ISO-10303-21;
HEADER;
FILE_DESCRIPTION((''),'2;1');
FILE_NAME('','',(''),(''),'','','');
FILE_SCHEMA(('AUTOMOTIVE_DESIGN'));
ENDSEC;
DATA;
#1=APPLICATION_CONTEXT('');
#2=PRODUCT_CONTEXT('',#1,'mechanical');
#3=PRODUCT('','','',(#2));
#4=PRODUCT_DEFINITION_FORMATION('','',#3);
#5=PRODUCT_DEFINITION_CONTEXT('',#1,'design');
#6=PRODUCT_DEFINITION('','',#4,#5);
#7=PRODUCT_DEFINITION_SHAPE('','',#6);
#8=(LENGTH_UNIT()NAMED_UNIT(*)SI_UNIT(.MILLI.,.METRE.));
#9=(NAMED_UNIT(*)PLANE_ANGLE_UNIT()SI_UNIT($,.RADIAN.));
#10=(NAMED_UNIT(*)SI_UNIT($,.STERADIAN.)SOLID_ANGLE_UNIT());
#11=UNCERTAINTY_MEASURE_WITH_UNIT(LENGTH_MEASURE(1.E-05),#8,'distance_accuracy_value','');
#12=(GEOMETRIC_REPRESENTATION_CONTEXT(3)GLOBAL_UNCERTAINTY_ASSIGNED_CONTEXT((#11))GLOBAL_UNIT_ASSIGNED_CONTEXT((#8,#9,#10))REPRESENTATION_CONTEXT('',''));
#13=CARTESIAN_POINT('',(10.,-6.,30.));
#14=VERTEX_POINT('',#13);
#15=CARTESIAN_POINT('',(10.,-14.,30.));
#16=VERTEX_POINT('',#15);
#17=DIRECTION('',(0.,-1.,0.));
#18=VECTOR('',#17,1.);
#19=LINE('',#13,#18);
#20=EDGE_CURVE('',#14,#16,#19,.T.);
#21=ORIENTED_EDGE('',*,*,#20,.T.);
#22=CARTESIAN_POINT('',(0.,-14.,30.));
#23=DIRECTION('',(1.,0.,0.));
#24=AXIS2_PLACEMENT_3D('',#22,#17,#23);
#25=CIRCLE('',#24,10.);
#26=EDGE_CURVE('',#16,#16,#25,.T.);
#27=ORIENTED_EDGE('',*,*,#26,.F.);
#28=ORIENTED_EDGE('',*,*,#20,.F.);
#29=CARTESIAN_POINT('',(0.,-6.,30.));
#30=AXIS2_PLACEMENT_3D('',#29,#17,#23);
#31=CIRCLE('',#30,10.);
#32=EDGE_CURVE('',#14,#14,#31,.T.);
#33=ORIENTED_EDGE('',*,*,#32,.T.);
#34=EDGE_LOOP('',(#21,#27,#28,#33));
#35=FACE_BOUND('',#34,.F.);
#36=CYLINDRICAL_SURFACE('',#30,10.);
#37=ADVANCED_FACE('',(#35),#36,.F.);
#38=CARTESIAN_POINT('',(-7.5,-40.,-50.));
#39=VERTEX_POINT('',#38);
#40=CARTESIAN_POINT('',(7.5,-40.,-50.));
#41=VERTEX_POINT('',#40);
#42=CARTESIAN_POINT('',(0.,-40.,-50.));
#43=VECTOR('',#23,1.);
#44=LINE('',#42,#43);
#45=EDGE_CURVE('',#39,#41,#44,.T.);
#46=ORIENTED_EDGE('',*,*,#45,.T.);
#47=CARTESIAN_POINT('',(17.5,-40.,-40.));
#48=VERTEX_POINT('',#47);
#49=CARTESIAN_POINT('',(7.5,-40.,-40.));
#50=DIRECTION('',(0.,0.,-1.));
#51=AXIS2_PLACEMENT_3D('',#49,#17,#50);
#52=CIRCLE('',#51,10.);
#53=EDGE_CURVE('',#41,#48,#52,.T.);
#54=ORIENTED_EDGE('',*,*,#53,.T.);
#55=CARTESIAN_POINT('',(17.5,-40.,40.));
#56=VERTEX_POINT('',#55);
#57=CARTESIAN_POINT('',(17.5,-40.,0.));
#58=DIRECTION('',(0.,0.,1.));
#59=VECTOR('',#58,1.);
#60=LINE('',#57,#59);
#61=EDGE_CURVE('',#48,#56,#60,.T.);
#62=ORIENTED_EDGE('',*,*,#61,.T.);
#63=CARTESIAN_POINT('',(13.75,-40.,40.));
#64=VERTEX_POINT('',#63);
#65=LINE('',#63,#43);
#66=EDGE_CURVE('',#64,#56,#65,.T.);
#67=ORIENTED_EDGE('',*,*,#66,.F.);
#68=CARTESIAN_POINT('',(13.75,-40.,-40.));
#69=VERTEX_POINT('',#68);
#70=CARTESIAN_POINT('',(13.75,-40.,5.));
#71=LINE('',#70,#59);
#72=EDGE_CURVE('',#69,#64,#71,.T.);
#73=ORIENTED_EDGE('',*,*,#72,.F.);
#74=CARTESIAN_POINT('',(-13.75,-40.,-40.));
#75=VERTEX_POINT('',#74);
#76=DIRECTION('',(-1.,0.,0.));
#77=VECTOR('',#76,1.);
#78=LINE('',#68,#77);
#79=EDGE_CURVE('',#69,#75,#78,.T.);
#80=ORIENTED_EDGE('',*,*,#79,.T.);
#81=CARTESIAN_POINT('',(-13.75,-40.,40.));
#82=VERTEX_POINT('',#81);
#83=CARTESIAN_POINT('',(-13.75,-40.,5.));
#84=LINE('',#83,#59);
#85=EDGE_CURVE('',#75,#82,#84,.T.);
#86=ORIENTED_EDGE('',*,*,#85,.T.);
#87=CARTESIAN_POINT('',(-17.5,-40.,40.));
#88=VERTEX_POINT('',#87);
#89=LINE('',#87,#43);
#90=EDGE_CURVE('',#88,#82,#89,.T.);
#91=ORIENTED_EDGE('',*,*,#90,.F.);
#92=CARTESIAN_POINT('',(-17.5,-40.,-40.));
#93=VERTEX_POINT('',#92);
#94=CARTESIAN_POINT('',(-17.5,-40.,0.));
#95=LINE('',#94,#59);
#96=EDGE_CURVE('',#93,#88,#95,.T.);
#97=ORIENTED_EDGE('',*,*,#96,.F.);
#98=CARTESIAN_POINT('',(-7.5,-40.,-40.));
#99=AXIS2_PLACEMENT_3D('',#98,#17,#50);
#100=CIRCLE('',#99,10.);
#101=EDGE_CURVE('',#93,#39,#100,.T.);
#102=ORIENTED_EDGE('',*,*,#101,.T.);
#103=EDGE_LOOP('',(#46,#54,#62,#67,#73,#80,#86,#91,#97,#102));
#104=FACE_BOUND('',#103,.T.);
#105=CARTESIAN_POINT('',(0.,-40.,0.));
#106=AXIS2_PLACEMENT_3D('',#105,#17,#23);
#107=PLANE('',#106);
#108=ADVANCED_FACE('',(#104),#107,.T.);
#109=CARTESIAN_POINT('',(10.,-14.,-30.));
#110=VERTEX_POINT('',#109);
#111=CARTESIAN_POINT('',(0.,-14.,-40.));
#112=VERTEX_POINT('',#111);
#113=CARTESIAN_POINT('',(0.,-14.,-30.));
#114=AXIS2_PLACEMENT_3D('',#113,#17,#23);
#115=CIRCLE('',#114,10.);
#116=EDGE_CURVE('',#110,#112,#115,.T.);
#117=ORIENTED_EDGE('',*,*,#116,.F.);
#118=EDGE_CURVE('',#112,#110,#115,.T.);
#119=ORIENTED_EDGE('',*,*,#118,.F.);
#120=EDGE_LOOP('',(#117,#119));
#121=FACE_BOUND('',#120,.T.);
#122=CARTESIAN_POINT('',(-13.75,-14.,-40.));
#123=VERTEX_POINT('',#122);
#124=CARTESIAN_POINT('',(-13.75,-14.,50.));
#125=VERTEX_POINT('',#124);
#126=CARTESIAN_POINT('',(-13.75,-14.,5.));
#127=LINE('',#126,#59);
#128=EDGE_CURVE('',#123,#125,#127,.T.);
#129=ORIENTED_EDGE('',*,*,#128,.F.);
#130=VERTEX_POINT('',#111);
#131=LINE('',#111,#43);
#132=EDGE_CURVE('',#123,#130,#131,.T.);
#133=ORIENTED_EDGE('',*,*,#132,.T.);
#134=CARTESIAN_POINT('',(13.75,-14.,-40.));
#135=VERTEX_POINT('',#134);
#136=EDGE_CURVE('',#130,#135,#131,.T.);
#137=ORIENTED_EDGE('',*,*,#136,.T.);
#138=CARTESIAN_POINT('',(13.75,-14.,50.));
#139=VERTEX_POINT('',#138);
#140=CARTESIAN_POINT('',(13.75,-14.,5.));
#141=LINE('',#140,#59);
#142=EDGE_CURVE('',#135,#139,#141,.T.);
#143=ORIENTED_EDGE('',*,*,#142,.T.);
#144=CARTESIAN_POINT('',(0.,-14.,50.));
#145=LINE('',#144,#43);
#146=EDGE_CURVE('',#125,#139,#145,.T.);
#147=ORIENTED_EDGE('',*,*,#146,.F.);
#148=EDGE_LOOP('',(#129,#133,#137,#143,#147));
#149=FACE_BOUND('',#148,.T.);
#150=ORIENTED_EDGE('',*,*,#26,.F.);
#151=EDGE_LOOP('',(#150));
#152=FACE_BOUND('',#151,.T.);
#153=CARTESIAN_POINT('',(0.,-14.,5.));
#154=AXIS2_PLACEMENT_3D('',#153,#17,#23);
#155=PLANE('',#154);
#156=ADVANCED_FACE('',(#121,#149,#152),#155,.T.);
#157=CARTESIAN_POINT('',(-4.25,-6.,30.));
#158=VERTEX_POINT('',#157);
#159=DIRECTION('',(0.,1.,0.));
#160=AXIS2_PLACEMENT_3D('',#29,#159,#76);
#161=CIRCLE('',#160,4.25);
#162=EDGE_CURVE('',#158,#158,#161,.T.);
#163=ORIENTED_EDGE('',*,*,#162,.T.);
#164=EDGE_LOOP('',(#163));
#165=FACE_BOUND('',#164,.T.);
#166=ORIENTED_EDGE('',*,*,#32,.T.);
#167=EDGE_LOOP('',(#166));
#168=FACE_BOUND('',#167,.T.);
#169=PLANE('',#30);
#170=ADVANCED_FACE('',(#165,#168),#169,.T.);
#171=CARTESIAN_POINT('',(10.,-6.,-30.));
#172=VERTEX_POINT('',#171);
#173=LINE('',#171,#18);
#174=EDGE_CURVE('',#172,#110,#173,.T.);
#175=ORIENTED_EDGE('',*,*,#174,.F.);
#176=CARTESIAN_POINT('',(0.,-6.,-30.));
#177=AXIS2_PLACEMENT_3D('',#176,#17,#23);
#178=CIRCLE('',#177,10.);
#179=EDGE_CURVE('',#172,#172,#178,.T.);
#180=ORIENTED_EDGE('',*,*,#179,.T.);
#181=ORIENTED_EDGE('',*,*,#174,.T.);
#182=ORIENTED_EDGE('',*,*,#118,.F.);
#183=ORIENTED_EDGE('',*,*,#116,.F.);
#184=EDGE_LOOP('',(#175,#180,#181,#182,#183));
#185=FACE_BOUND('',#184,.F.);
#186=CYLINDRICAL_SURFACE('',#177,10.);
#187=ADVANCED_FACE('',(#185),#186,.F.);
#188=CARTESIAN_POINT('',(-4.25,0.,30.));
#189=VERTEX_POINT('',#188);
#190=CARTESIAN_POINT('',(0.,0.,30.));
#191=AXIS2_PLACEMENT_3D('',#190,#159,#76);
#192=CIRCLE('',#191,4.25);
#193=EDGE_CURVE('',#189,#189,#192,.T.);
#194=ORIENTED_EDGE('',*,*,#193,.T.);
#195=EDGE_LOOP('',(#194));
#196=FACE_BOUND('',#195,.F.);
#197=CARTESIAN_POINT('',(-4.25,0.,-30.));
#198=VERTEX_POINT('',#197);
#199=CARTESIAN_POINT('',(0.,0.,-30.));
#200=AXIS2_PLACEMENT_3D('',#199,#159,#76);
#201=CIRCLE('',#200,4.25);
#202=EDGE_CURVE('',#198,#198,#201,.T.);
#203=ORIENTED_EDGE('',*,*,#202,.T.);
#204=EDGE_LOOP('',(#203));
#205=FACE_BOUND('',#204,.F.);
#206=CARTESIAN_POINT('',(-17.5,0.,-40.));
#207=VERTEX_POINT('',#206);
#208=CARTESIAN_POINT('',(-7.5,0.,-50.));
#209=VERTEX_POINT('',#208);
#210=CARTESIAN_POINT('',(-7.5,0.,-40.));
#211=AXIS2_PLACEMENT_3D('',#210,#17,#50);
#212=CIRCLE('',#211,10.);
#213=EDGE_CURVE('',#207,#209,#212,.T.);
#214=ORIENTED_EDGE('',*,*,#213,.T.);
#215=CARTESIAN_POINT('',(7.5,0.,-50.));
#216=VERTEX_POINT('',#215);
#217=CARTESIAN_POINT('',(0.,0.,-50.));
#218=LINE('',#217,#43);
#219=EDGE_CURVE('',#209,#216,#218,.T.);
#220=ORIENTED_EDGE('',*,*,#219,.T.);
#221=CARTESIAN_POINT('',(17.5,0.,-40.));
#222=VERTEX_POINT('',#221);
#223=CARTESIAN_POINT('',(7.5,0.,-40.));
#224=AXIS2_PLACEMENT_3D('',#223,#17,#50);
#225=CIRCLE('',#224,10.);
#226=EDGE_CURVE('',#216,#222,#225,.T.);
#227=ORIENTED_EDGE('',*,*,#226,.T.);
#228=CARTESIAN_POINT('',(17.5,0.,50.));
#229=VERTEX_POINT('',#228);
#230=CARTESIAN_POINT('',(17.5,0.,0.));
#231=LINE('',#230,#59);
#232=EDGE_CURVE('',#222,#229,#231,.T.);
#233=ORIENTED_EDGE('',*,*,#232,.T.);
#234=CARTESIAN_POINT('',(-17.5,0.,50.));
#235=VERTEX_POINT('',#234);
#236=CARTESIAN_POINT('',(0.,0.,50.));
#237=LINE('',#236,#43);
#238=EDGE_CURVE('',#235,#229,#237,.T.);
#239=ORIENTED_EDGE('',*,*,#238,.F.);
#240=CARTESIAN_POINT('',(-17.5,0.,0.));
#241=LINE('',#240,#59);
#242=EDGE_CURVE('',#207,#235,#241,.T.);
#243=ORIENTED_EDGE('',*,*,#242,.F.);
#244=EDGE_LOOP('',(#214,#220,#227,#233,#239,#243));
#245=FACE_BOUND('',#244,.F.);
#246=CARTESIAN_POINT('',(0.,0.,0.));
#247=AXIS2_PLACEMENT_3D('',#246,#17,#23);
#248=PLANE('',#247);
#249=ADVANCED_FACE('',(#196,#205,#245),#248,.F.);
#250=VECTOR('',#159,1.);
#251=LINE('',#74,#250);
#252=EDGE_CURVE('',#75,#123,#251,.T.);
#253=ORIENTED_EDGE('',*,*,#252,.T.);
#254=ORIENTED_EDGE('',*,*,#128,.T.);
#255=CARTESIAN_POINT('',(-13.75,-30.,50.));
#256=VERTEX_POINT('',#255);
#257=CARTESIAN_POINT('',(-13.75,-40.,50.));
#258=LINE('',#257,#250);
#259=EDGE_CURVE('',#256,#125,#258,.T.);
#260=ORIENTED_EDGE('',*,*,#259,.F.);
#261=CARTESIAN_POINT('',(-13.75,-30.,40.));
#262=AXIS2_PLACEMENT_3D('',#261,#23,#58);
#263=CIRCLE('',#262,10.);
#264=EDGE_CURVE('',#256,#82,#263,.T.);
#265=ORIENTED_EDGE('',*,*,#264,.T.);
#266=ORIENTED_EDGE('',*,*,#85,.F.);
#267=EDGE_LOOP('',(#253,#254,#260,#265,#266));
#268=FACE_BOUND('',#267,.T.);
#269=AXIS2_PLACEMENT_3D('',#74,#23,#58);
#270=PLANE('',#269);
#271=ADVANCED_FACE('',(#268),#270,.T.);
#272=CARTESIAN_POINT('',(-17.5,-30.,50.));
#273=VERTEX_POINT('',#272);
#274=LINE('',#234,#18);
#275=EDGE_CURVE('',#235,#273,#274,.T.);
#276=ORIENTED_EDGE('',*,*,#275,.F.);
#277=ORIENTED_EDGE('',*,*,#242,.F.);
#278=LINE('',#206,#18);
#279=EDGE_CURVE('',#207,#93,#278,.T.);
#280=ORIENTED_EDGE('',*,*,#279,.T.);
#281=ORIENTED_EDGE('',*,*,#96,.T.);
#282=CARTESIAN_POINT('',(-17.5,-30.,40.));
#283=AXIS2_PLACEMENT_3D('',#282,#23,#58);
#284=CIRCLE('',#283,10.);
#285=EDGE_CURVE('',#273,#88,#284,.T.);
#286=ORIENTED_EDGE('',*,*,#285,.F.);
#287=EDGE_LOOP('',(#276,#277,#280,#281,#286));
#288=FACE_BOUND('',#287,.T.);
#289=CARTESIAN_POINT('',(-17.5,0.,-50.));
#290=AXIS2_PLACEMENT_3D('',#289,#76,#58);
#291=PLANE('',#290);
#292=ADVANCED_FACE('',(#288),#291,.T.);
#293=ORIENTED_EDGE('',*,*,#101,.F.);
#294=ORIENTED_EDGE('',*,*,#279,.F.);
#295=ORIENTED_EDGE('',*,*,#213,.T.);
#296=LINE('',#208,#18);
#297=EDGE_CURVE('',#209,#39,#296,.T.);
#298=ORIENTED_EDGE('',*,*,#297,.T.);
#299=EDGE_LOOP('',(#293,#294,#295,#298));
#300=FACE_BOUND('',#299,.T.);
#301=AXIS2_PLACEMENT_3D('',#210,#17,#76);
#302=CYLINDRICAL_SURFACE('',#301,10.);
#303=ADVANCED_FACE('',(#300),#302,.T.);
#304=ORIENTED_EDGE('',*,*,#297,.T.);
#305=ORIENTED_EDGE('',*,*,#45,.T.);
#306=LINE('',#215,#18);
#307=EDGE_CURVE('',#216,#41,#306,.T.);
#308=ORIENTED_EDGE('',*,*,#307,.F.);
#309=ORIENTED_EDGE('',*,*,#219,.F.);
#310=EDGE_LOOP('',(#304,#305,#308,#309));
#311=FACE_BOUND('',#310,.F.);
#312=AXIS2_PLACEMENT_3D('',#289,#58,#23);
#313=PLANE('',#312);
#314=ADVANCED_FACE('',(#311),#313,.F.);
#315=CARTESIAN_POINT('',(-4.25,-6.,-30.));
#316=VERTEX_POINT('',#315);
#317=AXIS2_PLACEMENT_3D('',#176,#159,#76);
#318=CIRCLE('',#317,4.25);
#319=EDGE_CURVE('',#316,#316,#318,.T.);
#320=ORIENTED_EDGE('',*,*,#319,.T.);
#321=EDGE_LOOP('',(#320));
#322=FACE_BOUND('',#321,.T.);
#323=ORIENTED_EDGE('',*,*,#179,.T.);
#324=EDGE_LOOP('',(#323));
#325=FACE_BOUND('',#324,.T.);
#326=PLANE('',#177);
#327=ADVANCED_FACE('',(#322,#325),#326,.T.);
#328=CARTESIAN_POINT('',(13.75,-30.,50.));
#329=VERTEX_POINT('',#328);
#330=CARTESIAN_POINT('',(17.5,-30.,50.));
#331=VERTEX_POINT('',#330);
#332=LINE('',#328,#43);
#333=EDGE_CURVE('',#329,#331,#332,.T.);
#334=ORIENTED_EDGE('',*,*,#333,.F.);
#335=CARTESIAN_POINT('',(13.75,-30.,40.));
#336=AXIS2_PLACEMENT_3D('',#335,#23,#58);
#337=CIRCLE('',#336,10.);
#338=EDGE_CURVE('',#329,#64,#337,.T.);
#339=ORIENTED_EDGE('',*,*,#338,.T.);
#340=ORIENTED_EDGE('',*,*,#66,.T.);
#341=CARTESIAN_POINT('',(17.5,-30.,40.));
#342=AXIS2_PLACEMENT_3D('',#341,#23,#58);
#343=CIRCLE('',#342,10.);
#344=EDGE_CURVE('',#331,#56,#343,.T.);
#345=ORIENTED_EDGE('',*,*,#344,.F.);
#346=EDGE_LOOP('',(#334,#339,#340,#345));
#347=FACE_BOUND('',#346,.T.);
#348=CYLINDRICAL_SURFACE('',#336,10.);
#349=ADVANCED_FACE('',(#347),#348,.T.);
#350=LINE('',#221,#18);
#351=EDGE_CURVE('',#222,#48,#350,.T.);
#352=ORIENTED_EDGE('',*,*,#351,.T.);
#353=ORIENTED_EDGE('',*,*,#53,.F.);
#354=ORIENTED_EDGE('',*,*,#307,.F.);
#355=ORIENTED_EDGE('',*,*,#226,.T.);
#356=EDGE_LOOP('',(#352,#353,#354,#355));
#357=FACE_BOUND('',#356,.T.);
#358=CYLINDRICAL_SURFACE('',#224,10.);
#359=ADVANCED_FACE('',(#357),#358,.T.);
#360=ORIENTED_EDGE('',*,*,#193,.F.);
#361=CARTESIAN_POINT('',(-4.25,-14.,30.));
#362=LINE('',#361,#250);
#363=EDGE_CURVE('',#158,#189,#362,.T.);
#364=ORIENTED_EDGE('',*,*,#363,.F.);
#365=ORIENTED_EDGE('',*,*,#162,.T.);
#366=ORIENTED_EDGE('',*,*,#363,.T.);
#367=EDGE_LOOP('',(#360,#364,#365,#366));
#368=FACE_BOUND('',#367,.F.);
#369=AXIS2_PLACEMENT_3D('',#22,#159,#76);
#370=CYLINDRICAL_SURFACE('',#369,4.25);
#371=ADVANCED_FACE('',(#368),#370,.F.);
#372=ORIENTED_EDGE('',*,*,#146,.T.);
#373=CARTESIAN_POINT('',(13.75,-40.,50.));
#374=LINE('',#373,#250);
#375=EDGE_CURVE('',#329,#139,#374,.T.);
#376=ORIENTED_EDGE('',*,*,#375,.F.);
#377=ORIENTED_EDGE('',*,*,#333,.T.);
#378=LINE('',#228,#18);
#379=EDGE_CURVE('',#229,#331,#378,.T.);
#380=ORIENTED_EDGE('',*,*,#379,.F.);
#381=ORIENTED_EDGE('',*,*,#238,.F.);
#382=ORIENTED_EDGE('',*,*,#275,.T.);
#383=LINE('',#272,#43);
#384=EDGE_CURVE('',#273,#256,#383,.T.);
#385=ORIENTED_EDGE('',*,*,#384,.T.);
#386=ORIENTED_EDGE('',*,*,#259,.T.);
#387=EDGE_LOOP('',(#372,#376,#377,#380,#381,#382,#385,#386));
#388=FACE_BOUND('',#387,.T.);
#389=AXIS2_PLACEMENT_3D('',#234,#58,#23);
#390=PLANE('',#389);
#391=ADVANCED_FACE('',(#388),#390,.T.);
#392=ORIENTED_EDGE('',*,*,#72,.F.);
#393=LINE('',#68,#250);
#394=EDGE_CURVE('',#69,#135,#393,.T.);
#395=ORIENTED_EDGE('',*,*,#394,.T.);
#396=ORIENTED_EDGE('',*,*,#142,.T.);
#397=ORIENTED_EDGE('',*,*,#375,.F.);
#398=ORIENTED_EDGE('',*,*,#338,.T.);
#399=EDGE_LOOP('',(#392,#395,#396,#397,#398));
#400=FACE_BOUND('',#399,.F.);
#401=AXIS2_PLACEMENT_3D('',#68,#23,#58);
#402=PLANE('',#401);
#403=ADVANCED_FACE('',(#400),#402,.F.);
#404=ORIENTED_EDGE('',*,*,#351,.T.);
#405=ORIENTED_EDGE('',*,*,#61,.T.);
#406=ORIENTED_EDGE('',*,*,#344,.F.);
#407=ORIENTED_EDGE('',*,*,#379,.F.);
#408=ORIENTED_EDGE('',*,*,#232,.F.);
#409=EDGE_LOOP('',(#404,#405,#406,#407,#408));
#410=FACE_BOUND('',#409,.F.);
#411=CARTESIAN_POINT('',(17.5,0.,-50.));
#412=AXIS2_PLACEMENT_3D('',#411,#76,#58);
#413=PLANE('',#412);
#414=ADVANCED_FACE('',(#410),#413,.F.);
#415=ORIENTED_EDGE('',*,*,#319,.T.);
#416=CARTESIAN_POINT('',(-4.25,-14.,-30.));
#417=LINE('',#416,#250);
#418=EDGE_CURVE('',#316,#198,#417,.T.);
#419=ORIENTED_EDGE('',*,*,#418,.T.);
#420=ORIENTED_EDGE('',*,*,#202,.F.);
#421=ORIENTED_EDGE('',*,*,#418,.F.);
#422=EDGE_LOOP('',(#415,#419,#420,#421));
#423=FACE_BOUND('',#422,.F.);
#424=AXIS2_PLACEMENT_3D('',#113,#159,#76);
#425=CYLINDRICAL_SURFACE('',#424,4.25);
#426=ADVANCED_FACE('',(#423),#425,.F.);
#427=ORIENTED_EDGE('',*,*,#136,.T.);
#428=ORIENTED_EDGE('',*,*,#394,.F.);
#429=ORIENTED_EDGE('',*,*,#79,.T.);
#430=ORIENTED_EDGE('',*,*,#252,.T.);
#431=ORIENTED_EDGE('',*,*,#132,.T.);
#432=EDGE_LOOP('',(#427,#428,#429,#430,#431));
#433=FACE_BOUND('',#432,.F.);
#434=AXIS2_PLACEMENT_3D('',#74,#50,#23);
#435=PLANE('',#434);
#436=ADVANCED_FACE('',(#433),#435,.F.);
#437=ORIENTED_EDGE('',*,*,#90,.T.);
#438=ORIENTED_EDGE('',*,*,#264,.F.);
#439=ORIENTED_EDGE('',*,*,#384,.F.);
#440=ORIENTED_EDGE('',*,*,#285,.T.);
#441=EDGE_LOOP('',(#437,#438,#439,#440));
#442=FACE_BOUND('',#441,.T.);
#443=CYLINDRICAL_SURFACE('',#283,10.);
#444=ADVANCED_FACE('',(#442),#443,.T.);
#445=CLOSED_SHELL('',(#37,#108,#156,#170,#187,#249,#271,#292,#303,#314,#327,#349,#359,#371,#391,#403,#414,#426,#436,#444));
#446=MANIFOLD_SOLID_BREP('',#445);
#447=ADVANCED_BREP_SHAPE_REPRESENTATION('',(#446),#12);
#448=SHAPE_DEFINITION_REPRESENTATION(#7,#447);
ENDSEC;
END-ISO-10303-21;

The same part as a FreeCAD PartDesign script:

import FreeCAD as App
import Part
import Sketcher
from FreeCAD import Vector


def edges_at(feature, points):
    """Names of the edges that pass closest to the given points."""
    edges = feature.Shape.Edges
    near = lambda p: min(range(len(edges)), key=lambda i: edges[i].distToShape(Part.Vertex(*p))[0])
    return sorted({f"Edge{near(p) + 1}" for p in points})


def add_polygon(sketch, points):
    """Adds a closed chain of lines whose ends are joined by coincident constraints."""
    first, n = sketch.GeometryCount, len(points)
    for a, b in zip(points, points[1:] + points[:1]):
        sketch.addGeometry(Part.LineSegment(App.Vector(*a, 0), App.Vector(*b, 0)), False)
    for i in range(n):
        sketch.addConstraint(Sketcher.Constraint("Coincident", first + i, 2, first + (i + 1) % n, 1))

doc = App.newDocument("Part")
body = doc.addObject("PartDesign::Body", "Body")

# Sketch on XZ plane
sketch1 = body.newObject("Sketcher::SketchObject", "Sketch")
sketch1.AttachmentSupport = (doc.getObject("XZ_Plane"), [""])
sketch1.MapMode = "FlatFace"
add_polygon(sketch1, [(-18, 50), (-18, -50), (18, -50), (18, 50)])  # lines 0-3
sketch1.addConstraint(Sketcher.Constraint("Vertical", 0))
sketch1.addConstraint(Sketcher.Constraint("Horizontal", 1))
sketch1.addConstraint(Sketcher.Constraint("Vertical", 2))
sketch1.addConstraint(Sketcher.Constraint("Horizontal", 3))
sketch1.addConstraint(Sketcher.Constraint("Symmetric", 0, 2, 2, 2, -1, 1))
sketch1.addConstraint(Sketcher.Constraint("DistanceX", 1, 1, 1, 2, 35.0))
sketch1.addConstraint(Sketcher.Constraint("DistanceY", 0, 2, 0, 1, 100.0))
pad1 = body.newObject("PartDesign::Pad", "Pad")
pad1.Profile = sketch1
pad1.Length = 40

# Sketch on XZ plane
sketch2 = body.newObject("Sketcher::SketchObject", "Sketch001")
sketch2.AttachmentSupport = (doc.getObject("XZ_Plane"), [""])
sketch2.MapMode = "FlatFace"
sketch2.AttachmentOffset = App.Placement(Vector(0, 0, 40), App.Rotation())
add_polygon(sketch2, [(-14, 50), (-14, -40), (14, -40), (14, 50)])  # lines 0-3
sketch2.addConstraint(Sketcher.Constraint("Vertical", 0))
sketch2.addConstraint(Sketcher.Constraint("Horizontal", 1))
sketch2.addConstraint(Sketcher.Constraint("Vertical", 2))
sketch2.addConstraint(Sketcher.Constraint("Horizontal", 3))
sketch2.addConstraint(Sketcher.Constraint("DistanceY", 0, 2, 0, 1, 90.0))
sketch2.addConstraint(Sketcher.Constraint("DistanceX", 1, 1, 1, 2, 27.5))
sketch2.addConstraint(Sketcher.Constraint("DistanceY", 0, 2, -1, 1, 40.0))
sketch2.addConstraint(Sketcher.Constraint("DistanceX", 0, 2, -1, 1, 13.75))
pocket1 = body.newObject("PartDesign::Pocket", "Pocket")
pocket1.Profile = sketch2
pocket1.Length = 26
doc.recompute()

fillet = body.newObject("PartDesign::Fillet", "Fillet")
fillet.Base = (pocket1, edges_at(pocket1, [
    (-15.625, -40, 50),
    (15.625, -40, 50),
    (-17.5, -20, -50),
    (17.5, -20, -50),
]))
fillet.Radius = 10

# Sketch on XZ plane
sketch3 = body.newObject("Sketcher::SketchObject", "Sketch002")
sketch3.AttachmentSupport = (doc.getObject("XZ_Plane"), [""])
sketch3.MapMode = "FlatFace"
sketch3.AttachmentOffset = App.Placement(Vector(0, 0, 14), App.Rotation())
sketch3.addGeometry(Part.Circle(Vector(0, 30, 0), Vector(0, 0, 1), 4.2), False)
sketch3.addGeometry(Part.Circle(Vector(0, -30, 0), Vector(0, 0, 1), 4.2), False)
sketch3.addConstraint(Sketcher.Constraint("Equal", 0, 1))
sketch3.addConstraint(Sketcher.Constraint("Symmetric", 0, 3, 1, 3, -1, 1))
sketch3.addConstraint(Sketcher.Constraint("PointOnObject", 0, 3, -2))
sketch3.addConstraint(Sketcher.Constraint("Diameter", 0, 8.5))
sketch3.addConstraint(Sketcher.Constraint("DistanceY", -1, 1, 0, 3, 30.0))
doc.recompute()
hole = body.newObject("PartDesign::Hole", "Hole")
hole.Profile = sketch3
hole.ThreadType = "None"
hole.Diameter = 8.5
hole.DepthType = "ThroughAll"
hole.HoleCutType = "Counterbore"
hole.HoleCutDiameter = 20
hole.HoleCutDepth = 8

doc.recompute()
